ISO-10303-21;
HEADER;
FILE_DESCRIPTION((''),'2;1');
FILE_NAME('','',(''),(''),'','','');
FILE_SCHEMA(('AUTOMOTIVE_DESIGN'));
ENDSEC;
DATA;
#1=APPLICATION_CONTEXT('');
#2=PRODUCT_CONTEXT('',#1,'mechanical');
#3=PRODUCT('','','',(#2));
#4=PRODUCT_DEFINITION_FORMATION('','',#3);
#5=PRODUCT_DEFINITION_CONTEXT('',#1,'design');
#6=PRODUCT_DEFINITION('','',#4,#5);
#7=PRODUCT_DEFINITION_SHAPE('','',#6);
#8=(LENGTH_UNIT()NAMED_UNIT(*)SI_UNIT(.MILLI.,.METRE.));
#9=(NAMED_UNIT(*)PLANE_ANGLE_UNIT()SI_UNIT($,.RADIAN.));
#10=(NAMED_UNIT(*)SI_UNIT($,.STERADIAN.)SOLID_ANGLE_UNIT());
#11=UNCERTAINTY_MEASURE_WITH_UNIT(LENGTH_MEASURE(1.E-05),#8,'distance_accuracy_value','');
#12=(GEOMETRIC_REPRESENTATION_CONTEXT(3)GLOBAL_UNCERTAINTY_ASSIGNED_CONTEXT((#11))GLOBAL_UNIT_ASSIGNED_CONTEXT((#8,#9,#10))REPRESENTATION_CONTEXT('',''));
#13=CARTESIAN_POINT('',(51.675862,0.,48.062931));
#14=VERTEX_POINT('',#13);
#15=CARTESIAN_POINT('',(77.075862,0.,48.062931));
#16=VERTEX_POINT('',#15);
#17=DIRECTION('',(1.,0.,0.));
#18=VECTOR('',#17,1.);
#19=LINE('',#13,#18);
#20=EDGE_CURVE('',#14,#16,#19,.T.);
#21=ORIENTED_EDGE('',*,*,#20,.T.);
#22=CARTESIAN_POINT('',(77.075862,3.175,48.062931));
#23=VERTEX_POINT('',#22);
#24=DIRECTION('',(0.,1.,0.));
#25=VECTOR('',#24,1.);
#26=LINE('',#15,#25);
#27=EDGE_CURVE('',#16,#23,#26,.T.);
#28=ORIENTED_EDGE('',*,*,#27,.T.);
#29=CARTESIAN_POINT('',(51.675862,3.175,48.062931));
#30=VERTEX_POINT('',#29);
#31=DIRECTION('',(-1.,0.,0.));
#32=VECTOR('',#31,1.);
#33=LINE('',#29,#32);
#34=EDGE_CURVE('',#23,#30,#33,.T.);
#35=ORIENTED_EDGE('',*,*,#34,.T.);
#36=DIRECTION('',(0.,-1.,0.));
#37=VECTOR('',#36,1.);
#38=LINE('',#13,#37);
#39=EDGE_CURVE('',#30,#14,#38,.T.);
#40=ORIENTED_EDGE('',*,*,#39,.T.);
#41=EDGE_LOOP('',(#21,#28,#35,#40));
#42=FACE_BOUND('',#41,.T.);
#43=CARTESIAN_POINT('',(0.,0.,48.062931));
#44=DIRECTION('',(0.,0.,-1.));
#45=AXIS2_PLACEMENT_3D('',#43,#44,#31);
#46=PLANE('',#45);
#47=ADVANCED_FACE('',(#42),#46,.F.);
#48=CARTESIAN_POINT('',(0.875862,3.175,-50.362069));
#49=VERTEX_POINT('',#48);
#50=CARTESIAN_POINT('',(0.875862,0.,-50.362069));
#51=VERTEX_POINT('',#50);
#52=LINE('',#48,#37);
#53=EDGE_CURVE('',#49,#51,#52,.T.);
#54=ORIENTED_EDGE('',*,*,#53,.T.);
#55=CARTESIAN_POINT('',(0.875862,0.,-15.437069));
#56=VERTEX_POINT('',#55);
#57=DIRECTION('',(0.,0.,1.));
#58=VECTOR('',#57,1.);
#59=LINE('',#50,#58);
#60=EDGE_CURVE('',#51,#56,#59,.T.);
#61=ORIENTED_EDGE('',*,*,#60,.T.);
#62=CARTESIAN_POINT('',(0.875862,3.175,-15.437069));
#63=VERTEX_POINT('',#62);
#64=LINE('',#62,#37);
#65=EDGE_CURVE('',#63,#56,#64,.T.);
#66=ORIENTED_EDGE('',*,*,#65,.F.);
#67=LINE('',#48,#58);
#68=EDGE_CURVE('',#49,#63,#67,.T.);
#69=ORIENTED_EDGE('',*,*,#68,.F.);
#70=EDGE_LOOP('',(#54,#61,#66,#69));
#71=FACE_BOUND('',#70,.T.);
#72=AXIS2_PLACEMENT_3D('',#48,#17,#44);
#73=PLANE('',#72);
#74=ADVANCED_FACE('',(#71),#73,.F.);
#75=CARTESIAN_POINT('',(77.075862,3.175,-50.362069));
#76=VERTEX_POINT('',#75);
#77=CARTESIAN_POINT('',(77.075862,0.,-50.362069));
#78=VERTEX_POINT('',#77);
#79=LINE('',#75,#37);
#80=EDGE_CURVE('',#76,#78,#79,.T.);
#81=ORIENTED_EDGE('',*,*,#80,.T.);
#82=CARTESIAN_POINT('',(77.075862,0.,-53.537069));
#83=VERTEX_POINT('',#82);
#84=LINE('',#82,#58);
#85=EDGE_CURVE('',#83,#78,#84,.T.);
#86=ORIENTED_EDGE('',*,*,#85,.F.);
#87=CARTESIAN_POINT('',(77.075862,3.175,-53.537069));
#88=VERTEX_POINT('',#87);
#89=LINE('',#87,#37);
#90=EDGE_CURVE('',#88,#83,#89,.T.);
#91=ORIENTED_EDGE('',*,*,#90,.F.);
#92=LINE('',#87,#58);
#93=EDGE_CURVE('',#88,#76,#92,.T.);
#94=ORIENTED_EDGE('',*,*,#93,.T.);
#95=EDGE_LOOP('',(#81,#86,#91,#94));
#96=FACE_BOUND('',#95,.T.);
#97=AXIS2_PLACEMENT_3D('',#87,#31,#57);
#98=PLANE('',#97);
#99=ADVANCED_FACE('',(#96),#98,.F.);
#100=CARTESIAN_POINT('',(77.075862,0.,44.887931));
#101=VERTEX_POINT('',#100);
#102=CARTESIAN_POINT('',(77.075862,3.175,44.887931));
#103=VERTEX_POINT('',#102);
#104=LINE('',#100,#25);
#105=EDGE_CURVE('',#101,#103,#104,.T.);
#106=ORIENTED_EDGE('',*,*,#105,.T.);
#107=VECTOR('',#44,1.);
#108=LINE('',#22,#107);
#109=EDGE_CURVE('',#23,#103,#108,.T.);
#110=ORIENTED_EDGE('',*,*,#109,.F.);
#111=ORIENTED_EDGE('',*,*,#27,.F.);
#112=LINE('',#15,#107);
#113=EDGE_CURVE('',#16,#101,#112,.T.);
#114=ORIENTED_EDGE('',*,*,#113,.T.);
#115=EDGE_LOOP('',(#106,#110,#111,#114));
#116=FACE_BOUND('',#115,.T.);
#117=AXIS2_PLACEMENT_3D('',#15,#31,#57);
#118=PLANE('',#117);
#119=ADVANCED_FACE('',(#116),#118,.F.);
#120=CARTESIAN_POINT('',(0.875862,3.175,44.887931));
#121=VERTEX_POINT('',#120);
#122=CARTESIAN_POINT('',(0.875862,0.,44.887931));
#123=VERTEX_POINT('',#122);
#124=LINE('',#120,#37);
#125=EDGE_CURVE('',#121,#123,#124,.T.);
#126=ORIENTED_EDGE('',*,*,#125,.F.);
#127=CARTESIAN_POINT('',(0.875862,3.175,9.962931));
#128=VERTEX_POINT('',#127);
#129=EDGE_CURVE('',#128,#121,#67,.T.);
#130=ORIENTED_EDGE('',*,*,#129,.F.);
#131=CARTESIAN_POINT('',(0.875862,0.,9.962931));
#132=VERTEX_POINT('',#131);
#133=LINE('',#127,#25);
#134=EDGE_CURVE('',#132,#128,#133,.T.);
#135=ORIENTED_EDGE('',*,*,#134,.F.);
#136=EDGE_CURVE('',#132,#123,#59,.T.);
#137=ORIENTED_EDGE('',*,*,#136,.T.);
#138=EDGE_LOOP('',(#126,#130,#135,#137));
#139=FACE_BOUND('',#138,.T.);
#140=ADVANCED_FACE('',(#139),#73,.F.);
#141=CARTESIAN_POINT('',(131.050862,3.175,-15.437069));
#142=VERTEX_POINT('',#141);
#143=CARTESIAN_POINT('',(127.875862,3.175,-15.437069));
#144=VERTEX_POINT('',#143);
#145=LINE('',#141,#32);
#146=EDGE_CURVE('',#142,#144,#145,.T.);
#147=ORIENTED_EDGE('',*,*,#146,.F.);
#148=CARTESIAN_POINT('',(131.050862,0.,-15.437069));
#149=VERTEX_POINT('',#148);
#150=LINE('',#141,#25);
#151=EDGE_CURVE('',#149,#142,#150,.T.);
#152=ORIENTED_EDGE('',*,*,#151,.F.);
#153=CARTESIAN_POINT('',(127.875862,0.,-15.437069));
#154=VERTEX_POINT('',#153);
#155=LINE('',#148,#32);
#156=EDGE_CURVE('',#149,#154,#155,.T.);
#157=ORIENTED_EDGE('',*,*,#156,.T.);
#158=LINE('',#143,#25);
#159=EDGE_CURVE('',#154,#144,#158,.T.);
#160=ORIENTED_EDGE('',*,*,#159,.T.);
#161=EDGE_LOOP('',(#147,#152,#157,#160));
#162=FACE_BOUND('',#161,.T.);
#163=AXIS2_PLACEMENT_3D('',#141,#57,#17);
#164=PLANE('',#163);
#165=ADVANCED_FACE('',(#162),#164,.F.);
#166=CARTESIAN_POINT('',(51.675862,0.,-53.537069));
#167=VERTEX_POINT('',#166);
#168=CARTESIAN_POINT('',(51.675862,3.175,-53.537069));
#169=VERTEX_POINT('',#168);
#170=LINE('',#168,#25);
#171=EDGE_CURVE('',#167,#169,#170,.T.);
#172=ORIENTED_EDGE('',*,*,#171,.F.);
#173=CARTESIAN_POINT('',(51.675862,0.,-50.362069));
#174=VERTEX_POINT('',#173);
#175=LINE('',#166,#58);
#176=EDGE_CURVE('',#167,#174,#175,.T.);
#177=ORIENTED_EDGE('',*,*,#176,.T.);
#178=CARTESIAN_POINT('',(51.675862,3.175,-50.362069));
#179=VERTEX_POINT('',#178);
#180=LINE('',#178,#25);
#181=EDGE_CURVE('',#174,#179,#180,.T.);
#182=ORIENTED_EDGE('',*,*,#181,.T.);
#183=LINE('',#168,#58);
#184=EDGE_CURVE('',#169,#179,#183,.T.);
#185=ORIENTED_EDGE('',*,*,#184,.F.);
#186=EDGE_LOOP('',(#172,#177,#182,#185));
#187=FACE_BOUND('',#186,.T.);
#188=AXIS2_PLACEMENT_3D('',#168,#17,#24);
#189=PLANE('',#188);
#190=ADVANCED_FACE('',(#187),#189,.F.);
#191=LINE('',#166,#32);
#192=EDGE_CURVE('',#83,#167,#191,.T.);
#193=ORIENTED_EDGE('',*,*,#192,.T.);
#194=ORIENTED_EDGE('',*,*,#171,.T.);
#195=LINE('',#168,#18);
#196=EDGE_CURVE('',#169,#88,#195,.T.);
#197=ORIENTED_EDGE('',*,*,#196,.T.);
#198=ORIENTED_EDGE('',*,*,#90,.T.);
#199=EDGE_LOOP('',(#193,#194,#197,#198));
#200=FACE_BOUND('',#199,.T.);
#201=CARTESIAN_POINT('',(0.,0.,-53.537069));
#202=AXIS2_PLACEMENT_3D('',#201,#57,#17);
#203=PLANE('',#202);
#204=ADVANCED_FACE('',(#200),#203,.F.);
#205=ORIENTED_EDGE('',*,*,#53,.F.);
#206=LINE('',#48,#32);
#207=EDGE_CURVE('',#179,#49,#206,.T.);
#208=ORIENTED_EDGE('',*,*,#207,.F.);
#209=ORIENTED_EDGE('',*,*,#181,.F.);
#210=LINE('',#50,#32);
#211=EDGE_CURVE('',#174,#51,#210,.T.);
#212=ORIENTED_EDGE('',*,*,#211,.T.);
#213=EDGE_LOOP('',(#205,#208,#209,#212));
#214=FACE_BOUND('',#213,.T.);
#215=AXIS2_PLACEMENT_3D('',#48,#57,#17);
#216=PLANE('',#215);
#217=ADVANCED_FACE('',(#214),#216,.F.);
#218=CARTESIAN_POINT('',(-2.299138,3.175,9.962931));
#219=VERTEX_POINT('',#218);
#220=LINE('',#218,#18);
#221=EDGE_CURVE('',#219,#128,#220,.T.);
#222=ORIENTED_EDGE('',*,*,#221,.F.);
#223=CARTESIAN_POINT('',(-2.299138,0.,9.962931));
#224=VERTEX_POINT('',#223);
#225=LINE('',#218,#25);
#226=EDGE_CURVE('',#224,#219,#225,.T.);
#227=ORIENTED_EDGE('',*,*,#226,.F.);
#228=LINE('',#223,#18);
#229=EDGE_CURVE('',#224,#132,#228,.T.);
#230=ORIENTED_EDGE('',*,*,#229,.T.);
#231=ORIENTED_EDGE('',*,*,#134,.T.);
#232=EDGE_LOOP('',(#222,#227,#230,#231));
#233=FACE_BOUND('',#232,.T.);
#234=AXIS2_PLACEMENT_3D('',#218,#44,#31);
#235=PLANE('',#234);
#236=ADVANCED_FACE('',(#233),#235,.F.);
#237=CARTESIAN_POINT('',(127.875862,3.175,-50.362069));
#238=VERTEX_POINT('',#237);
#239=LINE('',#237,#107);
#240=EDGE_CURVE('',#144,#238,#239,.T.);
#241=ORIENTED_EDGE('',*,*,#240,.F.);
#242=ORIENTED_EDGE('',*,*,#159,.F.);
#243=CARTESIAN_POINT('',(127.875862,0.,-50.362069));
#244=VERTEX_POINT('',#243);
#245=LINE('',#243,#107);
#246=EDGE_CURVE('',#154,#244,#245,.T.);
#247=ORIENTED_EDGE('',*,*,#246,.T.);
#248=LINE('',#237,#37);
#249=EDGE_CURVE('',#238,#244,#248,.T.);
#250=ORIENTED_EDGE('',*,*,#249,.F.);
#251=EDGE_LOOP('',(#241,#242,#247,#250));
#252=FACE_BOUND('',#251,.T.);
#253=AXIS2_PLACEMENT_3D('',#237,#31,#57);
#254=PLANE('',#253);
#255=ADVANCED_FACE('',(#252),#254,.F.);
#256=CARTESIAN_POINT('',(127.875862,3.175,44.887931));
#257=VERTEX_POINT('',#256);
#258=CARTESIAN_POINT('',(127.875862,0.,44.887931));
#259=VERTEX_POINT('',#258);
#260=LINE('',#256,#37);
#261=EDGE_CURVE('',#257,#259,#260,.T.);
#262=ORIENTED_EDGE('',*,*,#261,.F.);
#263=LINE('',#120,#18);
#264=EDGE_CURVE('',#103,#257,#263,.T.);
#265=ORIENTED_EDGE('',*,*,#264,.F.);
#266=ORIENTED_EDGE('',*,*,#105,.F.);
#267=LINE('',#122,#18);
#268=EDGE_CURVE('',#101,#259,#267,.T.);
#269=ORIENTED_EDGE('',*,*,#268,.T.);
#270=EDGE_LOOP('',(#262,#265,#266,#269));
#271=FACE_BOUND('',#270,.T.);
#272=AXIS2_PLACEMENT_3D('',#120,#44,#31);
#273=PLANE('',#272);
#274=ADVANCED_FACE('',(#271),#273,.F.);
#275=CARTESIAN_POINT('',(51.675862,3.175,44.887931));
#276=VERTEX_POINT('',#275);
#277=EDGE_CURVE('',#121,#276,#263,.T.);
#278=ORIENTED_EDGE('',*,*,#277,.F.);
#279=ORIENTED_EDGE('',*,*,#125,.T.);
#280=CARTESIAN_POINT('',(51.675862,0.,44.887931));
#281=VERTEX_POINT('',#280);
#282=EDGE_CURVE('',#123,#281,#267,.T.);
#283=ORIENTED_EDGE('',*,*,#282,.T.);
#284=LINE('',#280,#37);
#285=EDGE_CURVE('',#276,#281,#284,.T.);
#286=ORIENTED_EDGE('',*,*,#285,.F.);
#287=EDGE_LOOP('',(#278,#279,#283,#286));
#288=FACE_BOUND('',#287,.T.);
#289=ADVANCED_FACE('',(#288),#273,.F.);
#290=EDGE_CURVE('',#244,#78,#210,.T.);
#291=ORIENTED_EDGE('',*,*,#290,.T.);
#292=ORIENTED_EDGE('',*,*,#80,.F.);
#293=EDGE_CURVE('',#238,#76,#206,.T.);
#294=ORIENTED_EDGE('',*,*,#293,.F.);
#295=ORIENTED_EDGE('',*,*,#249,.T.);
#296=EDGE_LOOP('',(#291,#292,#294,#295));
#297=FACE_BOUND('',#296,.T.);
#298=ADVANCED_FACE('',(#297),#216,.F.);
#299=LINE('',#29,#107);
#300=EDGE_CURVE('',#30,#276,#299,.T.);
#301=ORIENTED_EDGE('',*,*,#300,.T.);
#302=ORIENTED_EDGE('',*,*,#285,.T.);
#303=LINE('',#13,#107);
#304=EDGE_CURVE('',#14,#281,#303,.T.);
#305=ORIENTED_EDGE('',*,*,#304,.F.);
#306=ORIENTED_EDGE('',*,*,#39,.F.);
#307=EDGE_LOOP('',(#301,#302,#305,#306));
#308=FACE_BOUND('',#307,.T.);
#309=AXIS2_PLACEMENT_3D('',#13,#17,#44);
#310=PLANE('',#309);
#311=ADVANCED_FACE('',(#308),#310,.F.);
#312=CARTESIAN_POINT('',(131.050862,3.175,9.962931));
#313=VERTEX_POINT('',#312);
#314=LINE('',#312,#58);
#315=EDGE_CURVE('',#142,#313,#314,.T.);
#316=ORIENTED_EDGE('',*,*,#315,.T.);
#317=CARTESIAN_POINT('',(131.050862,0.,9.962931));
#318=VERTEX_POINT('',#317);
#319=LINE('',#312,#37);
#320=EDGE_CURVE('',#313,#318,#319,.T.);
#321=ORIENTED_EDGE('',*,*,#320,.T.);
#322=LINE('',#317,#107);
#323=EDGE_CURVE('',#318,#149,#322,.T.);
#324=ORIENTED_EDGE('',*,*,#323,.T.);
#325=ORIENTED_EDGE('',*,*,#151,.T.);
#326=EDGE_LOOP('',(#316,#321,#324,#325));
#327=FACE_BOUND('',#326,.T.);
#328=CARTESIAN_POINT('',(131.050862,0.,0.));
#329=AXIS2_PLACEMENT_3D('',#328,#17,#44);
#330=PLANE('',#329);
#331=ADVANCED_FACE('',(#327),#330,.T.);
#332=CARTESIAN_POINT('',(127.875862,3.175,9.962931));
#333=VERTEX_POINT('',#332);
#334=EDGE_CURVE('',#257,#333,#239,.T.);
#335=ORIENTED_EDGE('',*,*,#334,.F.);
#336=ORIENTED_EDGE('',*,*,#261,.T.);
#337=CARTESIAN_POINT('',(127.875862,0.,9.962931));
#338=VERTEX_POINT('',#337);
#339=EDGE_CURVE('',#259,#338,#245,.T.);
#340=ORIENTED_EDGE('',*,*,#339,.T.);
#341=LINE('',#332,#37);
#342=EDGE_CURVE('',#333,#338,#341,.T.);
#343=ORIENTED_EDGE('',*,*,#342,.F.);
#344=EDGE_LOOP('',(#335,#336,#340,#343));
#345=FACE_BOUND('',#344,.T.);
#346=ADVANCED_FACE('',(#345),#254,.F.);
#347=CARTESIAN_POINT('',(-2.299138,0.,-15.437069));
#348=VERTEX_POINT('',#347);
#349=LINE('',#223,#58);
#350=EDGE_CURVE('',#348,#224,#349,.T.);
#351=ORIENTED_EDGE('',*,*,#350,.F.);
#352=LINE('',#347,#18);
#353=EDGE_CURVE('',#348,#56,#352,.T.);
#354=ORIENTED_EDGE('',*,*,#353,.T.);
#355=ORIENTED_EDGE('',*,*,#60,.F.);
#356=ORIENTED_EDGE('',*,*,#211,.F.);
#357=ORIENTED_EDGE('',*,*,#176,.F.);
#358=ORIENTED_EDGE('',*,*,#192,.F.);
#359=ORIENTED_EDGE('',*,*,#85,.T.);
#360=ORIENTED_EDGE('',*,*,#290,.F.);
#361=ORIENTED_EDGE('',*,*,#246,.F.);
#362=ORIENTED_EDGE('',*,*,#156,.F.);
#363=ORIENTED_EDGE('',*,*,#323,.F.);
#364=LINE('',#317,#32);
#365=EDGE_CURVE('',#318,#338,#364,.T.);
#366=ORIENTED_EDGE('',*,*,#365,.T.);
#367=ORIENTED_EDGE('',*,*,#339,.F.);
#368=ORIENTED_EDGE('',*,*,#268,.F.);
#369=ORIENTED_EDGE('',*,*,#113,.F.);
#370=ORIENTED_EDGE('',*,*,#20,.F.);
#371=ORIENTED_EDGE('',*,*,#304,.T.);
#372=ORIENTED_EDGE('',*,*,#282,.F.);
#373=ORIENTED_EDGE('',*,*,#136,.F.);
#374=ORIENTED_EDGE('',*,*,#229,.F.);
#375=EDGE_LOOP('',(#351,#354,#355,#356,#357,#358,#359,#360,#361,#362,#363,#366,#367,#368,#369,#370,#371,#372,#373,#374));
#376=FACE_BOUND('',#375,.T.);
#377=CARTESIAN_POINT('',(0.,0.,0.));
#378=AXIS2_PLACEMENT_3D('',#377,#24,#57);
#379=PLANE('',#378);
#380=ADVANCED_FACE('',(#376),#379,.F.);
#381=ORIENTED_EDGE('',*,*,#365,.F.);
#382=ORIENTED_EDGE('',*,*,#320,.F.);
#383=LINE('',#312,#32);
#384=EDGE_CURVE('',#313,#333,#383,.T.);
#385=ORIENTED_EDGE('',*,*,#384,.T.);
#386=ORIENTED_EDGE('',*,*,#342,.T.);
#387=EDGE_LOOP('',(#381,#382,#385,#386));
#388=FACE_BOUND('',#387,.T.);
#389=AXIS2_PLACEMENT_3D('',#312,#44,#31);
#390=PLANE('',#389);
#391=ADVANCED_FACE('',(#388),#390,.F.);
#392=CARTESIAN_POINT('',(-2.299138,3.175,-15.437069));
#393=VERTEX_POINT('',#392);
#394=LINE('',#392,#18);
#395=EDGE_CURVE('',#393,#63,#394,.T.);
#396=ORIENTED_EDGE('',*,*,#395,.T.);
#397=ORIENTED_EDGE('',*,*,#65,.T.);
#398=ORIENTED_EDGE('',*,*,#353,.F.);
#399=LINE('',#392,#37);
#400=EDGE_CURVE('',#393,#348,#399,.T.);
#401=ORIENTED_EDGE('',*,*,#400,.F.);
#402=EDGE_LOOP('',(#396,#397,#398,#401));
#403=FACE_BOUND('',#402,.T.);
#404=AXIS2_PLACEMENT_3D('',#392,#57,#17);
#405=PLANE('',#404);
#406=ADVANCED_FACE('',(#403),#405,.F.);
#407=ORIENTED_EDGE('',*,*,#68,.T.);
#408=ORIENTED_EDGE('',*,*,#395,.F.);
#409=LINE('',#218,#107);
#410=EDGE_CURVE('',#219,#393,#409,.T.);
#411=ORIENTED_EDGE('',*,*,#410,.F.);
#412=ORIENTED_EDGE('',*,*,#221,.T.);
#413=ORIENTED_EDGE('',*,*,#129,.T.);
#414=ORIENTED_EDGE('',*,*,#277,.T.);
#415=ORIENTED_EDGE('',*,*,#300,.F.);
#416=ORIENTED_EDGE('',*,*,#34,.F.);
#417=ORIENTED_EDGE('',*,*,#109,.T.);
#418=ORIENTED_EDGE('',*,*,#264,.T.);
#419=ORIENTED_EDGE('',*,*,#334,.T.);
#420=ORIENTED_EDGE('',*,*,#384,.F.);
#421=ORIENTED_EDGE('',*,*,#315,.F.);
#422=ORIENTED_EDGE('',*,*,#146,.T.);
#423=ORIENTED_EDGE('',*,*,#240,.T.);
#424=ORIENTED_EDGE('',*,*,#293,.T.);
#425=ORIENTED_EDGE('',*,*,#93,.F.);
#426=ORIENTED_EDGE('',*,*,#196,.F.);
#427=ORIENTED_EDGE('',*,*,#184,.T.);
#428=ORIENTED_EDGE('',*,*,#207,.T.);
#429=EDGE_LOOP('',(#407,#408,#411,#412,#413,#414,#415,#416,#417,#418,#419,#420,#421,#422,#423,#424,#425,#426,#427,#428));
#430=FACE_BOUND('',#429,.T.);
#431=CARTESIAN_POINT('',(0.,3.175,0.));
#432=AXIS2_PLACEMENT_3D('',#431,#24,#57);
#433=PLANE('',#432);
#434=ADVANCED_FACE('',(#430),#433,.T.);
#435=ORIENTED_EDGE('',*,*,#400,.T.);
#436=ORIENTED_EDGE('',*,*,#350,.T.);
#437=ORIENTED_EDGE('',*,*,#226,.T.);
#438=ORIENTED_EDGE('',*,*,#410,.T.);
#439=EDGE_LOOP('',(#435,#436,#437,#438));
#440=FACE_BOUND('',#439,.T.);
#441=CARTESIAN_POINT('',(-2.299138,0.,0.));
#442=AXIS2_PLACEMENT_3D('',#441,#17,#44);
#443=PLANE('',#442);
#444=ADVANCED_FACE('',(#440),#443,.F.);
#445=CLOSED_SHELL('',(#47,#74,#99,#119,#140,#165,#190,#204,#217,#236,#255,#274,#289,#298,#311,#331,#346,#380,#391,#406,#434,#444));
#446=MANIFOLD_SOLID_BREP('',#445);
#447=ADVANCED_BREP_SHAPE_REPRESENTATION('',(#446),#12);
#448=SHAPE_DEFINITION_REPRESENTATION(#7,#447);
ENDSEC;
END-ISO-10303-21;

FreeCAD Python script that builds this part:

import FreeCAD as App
import Part
import Sketcher

V = App.Vector
Q = App.Units.Quantity


def add_polygon(sketch, points):
    """Adds a closed chain of lines whose ends are joined by coincident constraints."""
    first, n = sketch.GeometryCount, len(points)
    for a, b in zip(points, points[1:] + points[:1]):
        sketch.addGeometry(Part.LineSegment(App.Vector(*a, 0), App.Vector(*b, 0)), False)
    for i in range(n):
        sketch.addConstraint(Sketcher.Constraint("Coincident", first + i, 2, first + (i + 1) % n, 1))

doc = App.newDocument("Part")
body = doc.addObject("PartDesign::Body", "Body")

sketch1 = body.newObject("Sketcher::SketchObject", "Sketch")
sketch1.AttachmentSupport = (doc.getObject("XZ_Plane"), [""])
sketch1.MapMode = "FlatFace"
add_polygon(sketch1, [(1, -50), (1, 45), (128, 45), (128, -50)])
sketch1.addConstraint([
    Sketcher.Constraint("Vertical", 0),
    Sketcher.Constraint("Horizontal", 1),
    Sketcher.Constraint("Vertical", 2),
    Sketcher.Constraint("Horizontal", 3),
    Sketcher.Constraint("DistanceX", 1, 1, 1, 2, Q("5 in")),
    Sketcher.Constraint("DistanceY", 0, 1, 0, 2, Q("3.75 in")),
    Sketcher.Constraint("DistanceY", -1, 1, 0, 2, 44.887931),
    Sketcher.Constraint("DistanceX", -1, 1, 0, 2, 0.875862),
])
pad1 = body.newObject("PartDesign::Pad", "Pad")
pad1.Profile = sketch1
pad1.Length = Q("0.125 in")
pad1.Reversed = True

sketch2 = body.newObject("Sketcher::SketchObject", "Sketch001")
sketch2.AttachmentSupport = (doc.getObject("YZ_Plane"), [""])
sketch2.MapMode = "FlatFace"
sketch2.AttachmentOffset = App.Placement(V(0, 0, 127.875862), App.Rotation())
add_polygon(sketch2, [(3.2, 10), (0, 10), (0, -15.4), (3.2, -15.4)])
sketch2.addConstraint([
    Sketcher.Constraint("Horizontal", 0),
    Sketcher.Constraint("Vertical", 1),
    Sketcher.Constraint("Horizontal", 2),
    Sketcher.Constraint("Vertical", 3),
    Sketcher.Constraint("PointOnObject", 0, 2, -2),
    Sketcher.Constraint("DistanceY", 1, 2, 1, 1, Q("1 in")),
    Sketcher.Constraint("DistanceX", 0, 2, 0, 1, Q("0.125 in")),
    Sketcher.Constraint("DistanceY", -1, 1, 0, 2, 9.962931),
])
pad2 = body.newObject("PartDesign::Pad", "Pad001")
pad2.Profile = sketch2
pad2.Length = Q("0.125 in")

sketch3 = body.newObject("Sketcher::SketchObject", "Sketch002")
sketch3.AttachmentSupport = (doc.getObject("YZ_Plane"), [""])
sketch3.MapMode = "FlatFace"
sketch3.AttachmentOffset = App.Placement(V(0, 0, 0.875862), App.Rotation())
add_polygon(sketch3, [(3.2, -15.4), (0, -15.4), (0, 10), (3.2, 10)])
sketch3.addConstraint([
    Sketcher.Constraint("Horizontal", 0),
    Sketcher.Constraint("Vertical", 1),
    Sketcher.Constraint("Horizontal", 2),
    Sketcher.Constraint("Vertical", 3),
    Sketcher.Constraint("PointOnObject", 0, 2, -2),
    Sketcher.Constraint("DistanceY", 1, 1, 1, 2, Q("1 in")),
    Sketcher.Constraint("DistanceX", 0, 2, 0, 1, Q("0.125 in")),
    Sketcher.Constraint("DistanceY", 0, 2, -1, 1, 15.437069),
])
pad3 = body.newObject("PartDesign::Pad", "Pad002")
pad3.Profile = sketch3
pad3.Length = Q("0.125 in")
pad3.Reversed = True

sketch4 = body.newObject("Sketcher::SketchObject", "Sketch003")
sketch4.AttachmentSupport = (doc.getObject("XY_Plane"), [""])
sketch4.MapMode = "FlatFace"
sketch4.AttachmentOffset = App.Placement(V(0, 0, -50.362069), App.Rotation())
add_polygon(sketch4, [(77.1, 3.2), (77.1, 0), (51.7, 0), (51.7, 3.2)])
sketch4.addConstraint([
    Sketcher.Constraint("Vertical", 0),
    Sketcher.Constraint("Horizontal", 1),
    Sketcher.Constraint("Vertical", 2),
    Sketcher.Constraint("Horizontal", 3),
    Sketcher.Constraint("PointOnObject", 0, 2, -1),
    Sketcher.Constraint("DistanceX", 1, 2, 1, 1, Q("1 in")),
    Sketcher.Constraint("DistanceY", 0, 2, 0, 1, Q("0.125 in")),
    Sketcher.Constraint("DistanceX", -1, 1, 0, 2, 77.075862),
])
pad4 = body.newObject("PartDesign::Pad", "Pad003")
pad4.Profile = sketch4
pad4.Length = Q("0.125 in")
pad4.Reversed = True

sketch5 = body.newObject("Sketcher::SketchObject", "Sketch004")
sketch5.AttachmentSupport = (doc.getObject("XY_Plane"), [""])
sketch5.MapMode = "FlatFace"
sketch5.AttachmentOffset = App.Placement(V(0, 0, 44.887931), App.Rotation())
add_polygon(sketch5, [(51.7, 3.2), (51.7, 0), (77.1, 0), (77.1, 3.2)])
sketch5.addConstraint([
    Sketcher.Constraint("Vertical", 0),
    Sketcher.Constraint("Horizontal", 1),
    Sketcher.Constraint("Vertical", 2),
    Sketcher.Constraint("Horizontal", 3),
    Sketcher.Constraint("PointOnObject", 0, 2, -1),
    Sketcher.Constraint("DistanceX", 1, 1, 1, 2, Q("1 in")),
    Sketcher.Constraint("DistanceY", 0, 2, 0, 1, Q("0.125 in")),
    Sketcher.Constraint("DistanceX", -1, 1, 0, 2, 51.675862),
])
pad5 = body.newObject("PartDesign::Pad", "Pad004")
pad5.Profile = sketch5
pad5.Length = Q("0.125 in")

doc.recompute()
